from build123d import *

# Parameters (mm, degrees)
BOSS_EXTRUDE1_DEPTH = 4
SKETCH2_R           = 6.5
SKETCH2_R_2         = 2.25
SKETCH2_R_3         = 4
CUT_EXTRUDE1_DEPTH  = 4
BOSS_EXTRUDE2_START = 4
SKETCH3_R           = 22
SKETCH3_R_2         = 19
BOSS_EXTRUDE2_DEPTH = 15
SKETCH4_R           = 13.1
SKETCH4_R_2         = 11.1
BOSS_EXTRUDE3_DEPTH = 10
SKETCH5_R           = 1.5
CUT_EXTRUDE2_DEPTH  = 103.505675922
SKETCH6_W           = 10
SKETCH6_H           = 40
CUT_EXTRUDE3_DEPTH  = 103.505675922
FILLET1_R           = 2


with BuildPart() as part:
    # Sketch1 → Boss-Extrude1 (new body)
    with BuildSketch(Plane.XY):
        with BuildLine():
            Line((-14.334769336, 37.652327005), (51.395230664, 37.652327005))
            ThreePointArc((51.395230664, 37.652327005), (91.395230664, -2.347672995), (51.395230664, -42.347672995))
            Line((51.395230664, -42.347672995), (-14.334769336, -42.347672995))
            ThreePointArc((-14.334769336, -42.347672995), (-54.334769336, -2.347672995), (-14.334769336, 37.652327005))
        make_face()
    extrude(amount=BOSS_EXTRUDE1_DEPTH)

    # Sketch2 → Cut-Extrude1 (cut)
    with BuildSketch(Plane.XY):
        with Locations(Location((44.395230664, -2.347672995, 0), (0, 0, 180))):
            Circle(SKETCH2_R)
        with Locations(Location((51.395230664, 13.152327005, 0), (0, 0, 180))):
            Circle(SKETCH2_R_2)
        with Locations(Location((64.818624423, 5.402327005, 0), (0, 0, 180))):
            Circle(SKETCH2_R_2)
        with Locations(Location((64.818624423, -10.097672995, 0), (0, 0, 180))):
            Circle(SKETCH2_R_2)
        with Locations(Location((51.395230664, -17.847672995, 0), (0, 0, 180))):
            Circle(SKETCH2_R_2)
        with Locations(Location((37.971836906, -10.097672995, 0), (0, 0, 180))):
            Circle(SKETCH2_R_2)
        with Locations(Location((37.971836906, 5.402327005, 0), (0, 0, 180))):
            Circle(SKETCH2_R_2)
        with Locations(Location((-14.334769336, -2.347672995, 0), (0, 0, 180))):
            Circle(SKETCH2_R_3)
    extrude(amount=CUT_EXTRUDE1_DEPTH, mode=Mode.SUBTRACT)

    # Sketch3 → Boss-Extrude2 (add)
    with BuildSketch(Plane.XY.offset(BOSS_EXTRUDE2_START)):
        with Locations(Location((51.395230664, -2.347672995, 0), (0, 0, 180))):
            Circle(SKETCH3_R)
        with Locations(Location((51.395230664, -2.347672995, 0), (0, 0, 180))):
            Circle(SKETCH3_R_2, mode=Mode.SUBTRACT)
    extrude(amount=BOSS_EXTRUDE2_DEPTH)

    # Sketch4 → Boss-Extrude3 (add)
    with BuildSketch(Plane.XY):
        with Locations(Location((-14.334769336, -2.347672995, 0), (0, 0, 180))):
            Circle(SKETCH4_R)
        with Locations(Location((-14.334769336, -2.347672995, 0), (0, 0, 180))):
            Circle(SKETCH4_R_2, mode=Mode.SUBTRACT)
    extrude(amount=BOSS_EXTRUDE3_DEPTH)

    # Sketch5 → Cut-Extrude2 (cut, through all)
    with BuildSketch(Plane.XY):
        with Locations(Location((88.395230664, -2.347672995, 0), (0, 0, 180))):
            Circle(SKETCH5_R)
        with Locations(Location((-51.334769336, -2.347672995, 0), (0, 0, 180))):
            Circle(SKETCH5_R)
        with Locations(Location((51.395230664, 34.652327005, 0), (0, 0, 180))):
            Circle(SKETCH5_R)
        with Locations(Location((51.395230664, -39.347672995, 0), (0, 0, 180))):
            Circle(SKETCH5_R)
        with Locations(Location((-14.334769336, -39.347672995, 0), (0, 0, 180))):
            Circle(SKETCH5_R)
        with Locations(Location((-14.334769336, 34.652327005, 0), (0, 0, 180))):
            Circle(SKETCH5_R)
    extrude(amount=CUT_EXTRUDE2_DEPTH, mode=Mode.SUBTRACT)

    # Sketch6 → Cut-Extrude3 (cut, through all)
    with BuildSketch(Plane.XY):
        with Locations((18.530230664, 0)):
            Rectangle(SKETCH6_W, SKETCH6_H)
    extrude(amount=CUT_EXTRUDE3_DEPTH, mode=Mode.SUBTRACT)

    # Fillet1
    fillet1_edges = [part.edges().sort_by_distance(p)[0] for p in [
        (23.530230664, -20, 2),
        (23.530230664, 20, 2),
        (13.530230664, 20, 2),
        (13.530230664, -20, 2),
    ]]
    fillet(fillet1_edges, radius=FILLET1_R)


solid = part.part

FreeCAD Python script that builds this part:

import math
import FreeCAD as App
import Part
import Sketcher
from FreeCAD import Vector


def edges_at(feature, points):
    """Names of the edges that pass closest to the given points."""
    edges = feature.Shape.Edges
    near = lambda p: min(range(len(edges)), key=lambda i: edges[i].distToShape(Part.Vertex(*p))[0])
    return sorted({f"Edge{near(p) + 1}" for p in points})

doc = App.newDocument("Part")
body = doc.addObject("PartDesign::Body", "Body")

# Sketch on XY plane
sketch1 = doc.addObject("Sketcher::SketchObject", "Sketch")
body.addObject(sketch1)
sketch1.AttachmentSupport = (doc.XY_Plane, [""])
sketch1.MapMode = "FlatFace"
sketch1.addGeometry([
    Part.LineSegment(Vector(51.395231, 37.652327, 0), Vector(-14.334769, 37.652327, 0)),
    Part.ArcOfCircle(Part.Circle(Vector(-14.334769, -2.347673, 0), Vector(0, 0, 1), 40), math.radians(90), math.radians(270)),
    Part.LineSegment(Vector(-14.334769, -42.347673, 0), Vector(51.395231, -42.347673, 0)),
    Part.ArcOfCircle(Part.Circle(Vector(51.395231, -2.347673, 0), Vector(0, 0, 1), 40), math.radians(-90), math.radians(90)),
], False)
sketch1.addConstraint([
    Sketcher.Constraint("Tangent", 0, 2, 1, 1),
    Sketcher.Constraint("Tangent", 1, 2, 2, 1),
    Sketcher.Constraint("Tangent", 2, 2, 3, 1),
    Sketcher.Constraint("Tangent", 3, 2, 0, 1),
    Sketcher.Constraint("Horizontal", 0),
    Sketcher.Constraint("Horizontal", 2),
    Sketcher.Constraint("Radius", 1, 40.0),
    Sketcher.Constraint("DistanceX", 0, 2, 0, 1, 65.73),
    Sketcher.Constraint("DistanceX", 1, 3, -1, 1, 14.334769),
    Sketcher.Constraint("DistanceY", 1, 3, -1, 1, 2.347673),
])
pad1 = doc.addObject("PartDesign::Pad", "Pad")
body.addObject(pad1)
pad1.Profile = sketch1
pad1.Length = 4

# Sketch on XY plane
sketch2 = doc.addObject("Sketcher::SketchObject", "Sketch001")
body.addObject(sketch2)
sketch2.AttachmentSupport = (doc.XY_Plane, [""])
sketch2.MapMode = "FlatFace"
sketch2.addGeometry([
    Part.Circle(Vector(44.395231, -2.347673, 0), Vector(0, 0, 1), 6.5),  # 0
    Part.Circle(Vector(51.395231, 13.152327, 0), Vector(0, 0, 1), 2.25),  # 1
    Part.Circle(Vector(64.818624, 5.402327, 0), Vector(0, 0, 1), 2.25),  # 2
    Part.Circle(Vector(64.818624, -10.097673, 0), Vector(0, 0, 1), 2.25),  # 3
    Part.Circle(Vector(51.395231, -17.847673, 0), Vector(0, 0, 1), 2.25),  # 4
    Part.Circle(Vector(37.971837, -10.097673, 0), Vector(0, 0, 1), 2.25),  # 5
    Part.Circle(Vector(37.971837, 5.402327, 0), Vector(0, 0, 1), 2.25),  # 6
    Part.Circle(Vector(-14.334769, -2.347673, 0), Vector(0, 0, 1), 4),  # 7
], False)
sketch2.addConstraint([
    Sketcher.Constraint("Equal", 1, 2),
    Sketcher.Constraint("Equal", 2, 3),
    Sketcher.Constraint("Equal", 3, 4),
    Sketcher.Constraint("Equal", 4, 5),
    Sketcher.Constraint("Equal", 5, 6),
    Sketcher.Constraint("Horizontal", 3, 3, 5, 3),
    Sketcher.Constraint("Horizontal", 2, 3, 6, 3),
    Sketcher.Constraint("Horizontal", 0, 3, 7, 3),
    Sketcher.Constraint("Vertical", 2, 3, 3, 3),
    Sketcher.Constraint("Vertical", 1, 3, 4, 3),
    Sketcher.Constraint("Vertical", 5, 3, 6, 3),
    Sketcher.Constraint("Diameter", 0, 13.0),
    Sketcher.Constraint("Diameter", 7, 8.0),
    Sketcher.Constraint("Diameter", 1, 4.5),
    Sketcher.Constraint("DistanceX", 0, 3, 1, 3, 7.0),
    Sketcher.Constraint("DistanceY", 4, 3, 1, 3, 31.0),
    Sketcher.Constraint("DistanceY", 0, 3, 1, 3, 15.5),
    Sketcher.Constraint("DistanceY", 3, 3, 2, 3, 15.5),
    Sketcher.Constraint("DistanceY", 2, 3, 1, 3, 7.75),
    Sketcher.Constraint("DistanceX", 7, 3, 0, 3, 58.73),
    Sketcher.Constraint("DistanceX", -1, 1, 0, 3, 44.395231),
    Sketcher.Constraint("DistanceY", 0, 3, -1, 1, 2.347673),
    Sketcher.Constraint("DistanceX", -1, 1, 2, 3, 64.818624),
    Sketcher.Constraint("DistanceX", -1, 1, 5, 3, 37.971837),
])
pocket1 = doc.addObject("PartDesign::Pocket", "Pocket")
body.addObject(pocket1)
pocket1.Profile = sketch2
pocket1.Length = 4
pocket1.Reversed = True

# Sketch on XY plane
sketch3 = doc.addObject("Sketcher::SketchObject", "Sketch002")
body.addObject(sketch3)
sketch3.AttachmentSupport = (doc.XY_Plane, [""])
sketch3.MapMode = "FlatFace"
sketch3.AttachmentOffset = App.Placement(Vector(0, 0, 4), App.Rotation())
sketch3.addGeometry([
    Part.Circle(Vector(51.395231, -2.347673, 0), Vector(0, 0, 1), 22),
    Part.Circle(Vector(51.395231, -2.347673, 0), Vector(0, 0, 1), 19),
], False)
sketch3.addConstraint([
    Sketcher.Constraint("Coincident", 1, 3, 0, 3),
    Sketcher.Constraint("Diameter", 0, 44.0),
    Sketcher.Constraint("Diameter", 1, 38.0),
    Sketcher.Constraint("DistanceX", -1, 1, 0, 3, 51.395231),
    Sketcher.Constraint("DistanceY", 0, 3, -1, 1, 2.347673),
])
pad2 = doc.addObject("PartDesign::Pad", "Pad001")
body.addObject(pad2)
pad2.Profile = sketch3
pad2.Length = 15

# Sketch on XY plane
sketch4 = doc.addObject("Sketcher::SketchObject", "Sketch003")
body.addObject(sketch4)
sketch4.AttachmentSupport = (doc.XY_Plane, [""])
sketch4.MapMode = "FlatFace"
sketch4.addGeometry([
    Part.Circle(Vector(-14.334769, -2.347673, 0), Vector(0, 0, 1), 13.1),
    Part.Circle(Vector(-14.334769, -2.347673, 0), Vector(0, 0, 1), 11.1),
], False)
sketch4.addConstraint([
    Sketcher.Constraint("Coincident", 1, 3, 0, 3),
    Sketcher.Constraint("Diameter", 0, 26.2),
    Sketcher.Constraint("Diameter", 1, 22.2),
    Sketcher.Constraint("DistanceX", 0, 3, -1, 1, 14.334769),
    Sketcher.Constraint("DistanceY", 0, 3, -1, 1, 2.347673),
])
pad3 = doc.addObject("PartDesign::Pad", "Pad002")
body.addObject(pad3)
pad3.Profile = sketch4
pad3.Length = 10

# Sketch on XY plane
sketch5 = doc.addObject("Sketcher::SketchObject", "Sketch004")
body.addObject(sketch5)
sketch5.AttachmentSupport = (doc.XY_Plane, [""])
sketch5.MapMode = "FlatFace"
sketch5.addGeometry([
    Part.Circle(Vector(88.395231, -2.347673, 0), Vector(0, 0, 1), 1.5),  # 0
    Part.Circle(Vector(-51.334769, -2.347673, 0), Vector(0, 0, 1), 1.5),  # 1
    Part.Circle(Vector(51.395231, 34.652327, 0), Vector(0, 0, 1), 1.5),  # 2
    Part.Circle(Vector(51.395231, -39.347673, 0), Vector(0, 0, 1), 1.5),  # 3
    Part.Circle(Vector(-14.334769, -39.347673, 0), Vector(0, 0, 1), 1.5),  # 4
    Part.Circle(Vector(-14.334769, 34.652327, 0), Vector(0, 0, 1), 1.5),  # 5
], False)
sketch5.addConstraint([
    Sketcher.Constraint("Equal", 0, 1),
    Sketcher.Constraint("Equal", 1, 2),
    Sketcher.Constraint("Equal", 2, 3),
    Sketcher.Constraint("Equal", 3, 4),
    Sketcher.Constraint("Equal", 4, 5),
    Sketcher.Constraint("Horizontal", 0, 3, 1, 3),
    Sketcher.Constraint("Horizontal", 3, 3, 4, 3),
    Sketcher.Constraint("Horizontal", 2, 3, 5, 3),
    Sketcher.Constraint("Vertical", 2, 3, 3, 3),
    Sketcher.Constraint("Vertical", 4, 3, 5, 3),
    Sketcher.Constraint("Diameter", 0, 3.0),
    Sketcher.Constraint("DistanceX", 2, 3, 0, 3, 37.0),
    Sketcher.Constraint("DistanceY", 0, 3, 2, 3, 37.0),
    Sketcher.Constraint("DistanceY", 3, 3, 0, 3, 37.0),
    Sketcher.Constraint("DistanceX", 1, 3, 4, 3, 37.0),
    Sketcher.Constraint("DistanceX", 1, 3, 0, 3, 139.73),
    Sketcher.Constraint("DistanceX", -1, 1, 0, 3, 88.395231),
    Sketcher.Constraint("DistanceY", 0, 3, -1, 1, 2.347673),
])
pocket2 = doc.addObject("PartDesign::Pocket", "Pocket001")
body.addObject(pocket2)
pocket2.Profile = sketch5
pocket2.Type = "ThroughAll"
pocket2.Reversed = True

# Sketch on XY plane
sketch6 = doc.addObject("Sketcher::SketchObject", "Sketch005")
body.addObject(sketch6)
sketch6.AttachmentSupport = (doc.XY_Plane, [""])
sketch6.MapMode = "FlatFace"
sketch6.addGeometry([
    Part.LineSegment(Vector(13.530231, 20, 0), Vector(13.530231, -20, 0)),
    Part.LineSegment(Vector(13.530231, -20, 0), Vector(23.530231, -20, 0)),
    Part.LineSegment(Vector(23.530231, -20, 0), Vector(23.530231, 20, 0)),
    Part.LineSegment(Vector(23.530231, 20, 0), Vector(13.530231, 20, 0)),
], False)
sketch6.addConstraint([
    Sketcher.Constraint("Coincident", 0, 2, 1, 1),
    Sketcher.Constraint("Coincident", 1, 2, 2, 1),
    Sketcher.Constraint("Coincident", 2, 2, 3, 1),
    Sketcher.Constraint("Coincident", 3, 2, 0, 1),
    Sketcher.Constraint("Vertical", 0),
    Sketcher.Constraint("Horizontal", 1),
    Sketcher.Constraint("Vertical", 2),
    Sketcher.Constraint("Horizontal", 3),
    Sketcher.Constraint("DistanceX", 1, 1, 1, 2, 10.0),
    Sketcher.Constraint("DistanceY", 0, 2, 0, 1, 40.0),
    Sketcher.Constraint("DistanceY", 0, 2, -1, 1, 20.0),
    Sketcher.Constraint("DistanceX", -1, 1, 0, 2, 13.530231),
])
pocket3 = doc.addObject("PartDesign::Pocket", "Pocket002")
body.addObject(pocket3)
pocket3.Profile = sketch6
pocket3.Type = "ThroughAll"
pocket3.Reversed = True
doc.recompute()

fillet = doc.addObject("PartDesign::Fillet", "Fillet")
body.addObject(fillet)
fillet.Base = (pocket3, edges_at(pocket3, [
    (23.53, -20, 2),
    (23.53, 20, 2),
    (13.53, 20, 2),
    (13.53, -20, 2),
]))
fillet.Radius = 2

doc.recompute()
